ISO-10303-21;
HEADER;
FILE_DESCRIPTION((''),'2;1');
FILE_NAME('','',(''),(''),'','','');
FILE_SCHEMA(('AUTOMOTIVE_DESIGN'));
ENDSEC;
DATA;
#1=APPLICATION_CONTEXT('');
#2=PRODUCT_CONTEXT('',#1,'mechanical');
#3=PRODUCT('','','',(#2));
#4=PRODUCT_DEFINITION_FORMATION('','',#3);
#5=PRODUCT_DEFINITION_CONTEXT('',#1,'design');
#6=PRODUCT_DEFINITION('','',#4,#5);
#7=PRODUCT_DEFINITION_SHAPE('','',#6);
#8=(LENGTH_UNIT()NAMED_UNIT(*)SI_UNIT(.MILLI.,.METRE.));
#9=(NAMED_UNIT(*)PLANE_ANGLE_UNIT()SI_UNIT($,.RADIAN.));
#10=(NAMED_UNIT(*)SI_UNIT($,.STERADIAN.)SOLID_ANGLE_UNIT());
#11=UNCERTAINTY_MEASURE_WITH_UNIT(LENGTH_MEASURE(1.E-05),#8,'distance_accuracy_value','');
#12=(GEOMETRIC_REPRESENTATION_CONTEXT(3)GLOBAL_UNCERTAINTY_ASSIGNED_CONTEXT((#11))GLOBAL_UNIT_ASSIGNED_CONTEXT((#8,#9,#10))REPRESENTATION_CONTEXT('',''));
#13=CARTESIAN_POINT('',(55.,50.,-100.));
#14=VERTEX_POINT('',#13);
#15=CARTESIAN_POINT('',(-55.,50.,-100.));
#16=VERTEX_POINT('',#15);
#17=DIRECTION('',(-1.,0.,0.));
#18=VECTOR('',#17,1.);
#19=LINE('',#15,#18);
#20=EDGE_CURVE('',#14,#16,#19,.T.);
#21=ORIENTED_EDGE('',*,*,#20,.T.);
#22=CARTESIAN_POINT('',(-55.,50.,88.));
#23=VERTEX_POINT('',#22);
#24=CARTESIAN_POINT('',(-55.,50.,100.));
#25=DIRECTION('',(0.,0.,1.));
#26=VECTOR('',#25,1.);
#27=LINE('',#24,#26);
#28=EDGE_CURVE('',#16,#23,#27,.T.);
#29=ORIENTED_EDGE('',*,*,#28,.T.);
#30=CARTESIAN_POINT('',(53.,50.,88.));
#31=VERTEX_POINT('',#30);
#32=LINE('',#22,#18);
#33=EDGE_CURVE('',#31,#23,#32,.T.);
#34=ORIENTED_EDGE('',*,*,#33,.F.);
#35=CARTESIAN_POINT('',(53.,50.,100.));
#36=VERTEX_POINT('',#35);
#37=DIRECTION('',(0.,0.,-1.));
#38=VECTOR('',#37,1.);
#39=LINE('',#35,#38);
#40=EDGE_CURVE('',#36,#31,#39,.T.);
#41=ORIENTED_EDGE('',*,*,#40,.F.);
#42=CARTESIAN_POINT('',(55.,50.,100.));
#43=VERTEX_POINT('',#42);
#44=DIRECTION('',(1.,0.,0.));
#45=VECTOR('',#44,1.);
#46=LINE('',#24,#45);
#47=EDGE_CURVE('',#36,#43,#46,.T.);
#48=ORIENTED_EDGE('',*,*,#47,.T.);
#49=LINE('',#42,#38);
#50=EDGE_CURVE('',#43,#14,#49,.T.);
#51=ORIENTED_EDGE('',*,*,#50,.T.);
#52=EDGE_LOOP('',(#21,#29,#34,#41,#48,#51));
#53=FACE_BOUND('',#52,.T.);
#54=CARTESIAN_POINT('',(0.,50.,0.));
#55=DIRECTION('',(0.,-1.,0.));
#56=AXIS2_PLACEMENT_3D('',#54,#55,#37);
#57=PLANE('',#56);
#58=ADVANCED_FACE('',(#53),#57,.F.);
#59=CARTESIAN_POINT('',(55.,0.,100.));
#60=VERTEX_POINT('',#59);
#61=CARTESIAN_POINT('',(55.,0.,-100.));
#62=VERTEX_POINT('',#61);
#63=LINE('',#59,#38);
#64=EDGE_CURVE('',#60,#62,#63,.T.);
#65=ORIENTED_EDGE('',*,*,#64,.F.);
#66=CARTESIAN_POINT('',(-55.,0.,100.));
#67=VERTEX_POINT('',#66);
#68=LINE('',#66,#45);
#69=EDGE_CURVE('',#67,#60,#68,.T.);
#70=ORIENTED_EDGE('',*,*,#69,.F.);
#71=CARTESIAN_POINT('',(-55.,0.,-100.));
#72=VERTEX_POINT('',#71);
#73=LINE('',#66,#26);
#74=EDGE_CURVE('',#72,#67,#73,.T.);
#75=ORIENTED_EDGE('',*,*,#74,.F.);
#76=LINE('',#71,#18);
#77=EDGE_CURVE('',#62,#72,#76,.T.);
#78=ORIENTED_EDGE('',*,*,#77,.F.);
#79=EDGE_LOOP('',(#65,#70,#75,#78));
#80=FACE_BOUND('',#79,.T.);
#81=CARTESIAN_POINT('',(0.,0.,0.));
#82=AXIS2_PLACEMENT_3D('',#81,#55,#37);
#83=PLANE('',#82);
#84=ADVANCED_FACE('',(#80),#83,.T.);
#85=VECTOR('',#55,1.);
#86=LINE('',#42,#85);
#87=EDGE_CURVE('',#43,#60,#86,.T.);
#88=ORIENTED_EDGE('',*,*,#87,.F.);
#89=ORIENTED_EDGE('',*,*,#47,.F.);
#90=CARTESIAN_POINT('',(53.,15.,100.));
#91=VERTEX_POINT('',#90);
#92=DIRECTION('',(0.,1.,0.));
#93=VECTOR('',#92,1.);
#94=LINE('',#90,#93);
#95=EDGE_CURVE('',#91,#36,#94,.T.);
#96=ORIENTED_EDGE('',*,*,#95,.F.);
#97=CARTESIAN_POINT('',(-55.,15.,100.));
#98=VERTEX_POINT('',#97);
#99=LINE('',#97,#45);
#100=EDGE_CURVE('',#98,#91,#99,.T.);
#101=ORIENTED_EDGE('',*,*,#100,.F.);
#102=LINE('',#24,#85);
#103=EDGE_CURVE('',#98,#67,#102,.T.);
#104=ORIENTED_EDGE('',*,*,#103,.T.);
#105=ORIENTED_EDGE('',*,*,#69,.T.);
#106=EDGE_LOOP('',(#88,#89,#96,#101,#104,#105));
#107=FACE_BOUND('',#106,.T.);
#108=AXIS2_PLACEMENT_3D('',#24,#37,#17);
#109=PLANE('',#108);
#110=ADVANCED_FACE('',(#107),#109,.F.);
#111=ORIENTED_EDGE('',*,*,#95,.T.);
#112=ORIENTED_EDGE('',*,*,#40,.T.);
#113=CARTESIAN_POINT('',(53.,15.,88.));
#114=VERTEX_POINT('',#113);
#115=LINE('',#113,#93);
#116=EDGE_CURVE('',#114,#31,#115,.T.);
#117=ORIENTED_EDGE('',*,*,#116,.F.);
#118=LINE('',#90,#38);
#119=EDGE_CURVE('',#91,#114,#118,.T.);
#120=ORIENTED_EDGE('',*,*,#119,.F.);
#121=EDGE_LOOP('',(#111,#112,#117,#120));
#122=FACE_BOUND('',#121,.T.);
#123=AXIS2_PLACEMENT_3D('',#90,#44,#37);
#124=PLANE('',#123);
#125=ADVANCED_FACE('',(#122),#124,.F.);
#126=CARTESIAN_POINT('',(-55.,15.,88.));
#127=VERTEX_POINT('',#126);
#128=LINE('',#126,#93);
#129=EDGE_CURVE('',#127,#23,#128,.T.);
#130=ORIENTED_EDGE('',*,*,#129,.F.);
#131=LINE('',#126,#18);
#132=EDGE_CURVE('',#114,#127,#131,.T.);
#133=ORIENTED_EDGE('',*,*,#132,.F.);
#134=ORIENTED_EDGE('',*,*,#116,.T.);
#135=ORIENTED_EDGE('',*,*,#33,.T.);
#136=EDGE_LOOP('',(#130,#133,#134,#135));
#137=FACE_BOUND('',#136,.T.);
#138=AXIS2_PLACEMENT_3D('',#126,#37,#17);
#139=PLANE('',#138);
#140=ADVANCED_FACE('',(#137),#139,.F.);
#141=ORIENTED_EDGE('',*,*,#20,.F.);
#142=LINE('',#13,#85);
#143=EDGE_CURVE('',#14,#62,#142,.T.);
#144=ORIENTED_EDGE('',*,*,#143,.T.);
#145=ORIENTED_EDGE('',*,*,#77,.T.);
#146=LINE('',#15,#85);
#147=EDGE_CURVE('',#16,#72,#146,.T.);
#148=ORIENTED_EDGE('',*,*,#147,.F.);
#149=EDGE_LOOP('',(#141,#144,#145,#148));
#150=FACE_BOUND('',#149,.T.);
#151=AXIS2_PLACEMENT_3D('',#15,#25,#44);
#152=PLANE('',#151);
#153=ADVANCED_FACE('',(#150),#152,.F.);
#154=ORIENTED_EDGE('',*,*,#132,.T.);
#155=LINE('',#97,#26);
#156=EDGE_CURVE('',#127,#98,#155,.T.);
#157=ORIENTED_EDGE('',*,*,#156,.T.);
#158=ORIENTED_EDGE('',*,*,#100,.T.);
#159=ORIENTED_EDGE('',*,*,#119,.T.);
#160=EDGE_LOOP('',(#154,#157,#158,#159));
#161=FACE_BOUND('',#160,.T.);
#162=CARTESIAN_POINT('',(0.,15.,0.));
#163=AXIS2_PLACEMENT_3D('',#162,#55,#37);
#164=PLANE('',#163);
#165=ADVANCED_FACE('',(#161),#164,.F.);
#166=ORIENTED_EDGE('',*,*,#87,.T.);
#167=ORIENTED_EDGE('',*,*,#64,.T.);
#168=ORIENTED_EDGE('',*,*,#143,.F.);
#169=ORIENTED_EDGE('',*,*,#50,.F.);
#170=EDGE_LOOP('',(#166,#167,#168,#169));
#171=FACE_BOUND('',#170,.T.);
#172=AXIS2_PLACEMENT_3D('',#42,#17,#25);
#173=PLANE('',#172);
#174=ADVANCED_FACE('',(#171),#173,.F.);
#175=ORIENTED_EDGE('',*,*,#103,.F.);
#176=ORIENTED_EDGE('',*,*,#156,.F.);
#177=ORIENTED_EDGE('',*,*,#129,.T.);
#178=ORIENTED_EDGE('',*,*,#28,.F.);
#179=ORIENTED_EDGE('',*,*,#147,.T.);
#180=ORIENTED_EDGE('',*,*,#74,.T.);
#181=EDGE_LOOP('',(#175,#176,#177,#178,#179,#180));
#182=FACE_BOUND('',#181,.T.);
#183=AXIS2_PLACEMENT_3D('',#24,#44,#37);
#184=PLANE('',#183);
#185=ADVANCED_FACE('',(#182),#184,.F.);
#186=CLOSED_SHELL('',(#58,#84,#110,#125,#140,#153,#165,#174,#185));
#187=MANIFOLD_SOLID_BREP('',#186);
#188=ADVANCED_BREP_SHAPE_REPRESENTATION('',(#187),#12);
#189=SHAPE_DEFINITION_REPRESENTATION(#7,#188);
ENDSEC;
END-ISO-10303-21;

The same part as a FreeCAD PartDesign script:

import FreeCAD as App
import Part
import Sketcher
from FreeCAD import Vector


def add_polygon(sketch, points):
    """Adds a closed chain of lines whose ends are joined by coincident constraints."""
    first, n = sketch.GeometryCount, len(points)
    for a, b in zip(points, points[1:] + points[:1]):
        sketch.addGeometry(Part.LineSegment(App.Vector(*a, 0), App.Vector(*b, 0)), False)
    for i in range(n):
        sketch.addConstraint(Sketcher.Constraint("Coincident", first + i, 2, first + (i + 1) % n, 1))

doc = App.newDocument("Part")
body = doc.addObject("PartDesign::Body", "Body")

# Sketch on XZ plane
sketch1 = body.newObject("Sketcher::SketchObject", "Sketch")
sketch1.AttachmentSupport = (doc.getObject("XZ_Plane"), [""])
sketch1.MapMode = "FlatFace"
add_polygon(sketch1, [(-55, -100), (-55, 100), (55, 100), (55, -100)])  # lines 0-3
sketch1.addConstraint(Sketcher.Constraint("Vertical", 0))
sketch1.addConstraint(Sketcher.Constraint("Horizontal", 1))
sketch1.addConstraint(Sketcher.Constraint("Vertical", 2))
sketch1.addConstraint(Sketcher.Constraint("Horizontal", 3))
sketch1.addConstraint(Sketcher.Constraint("Symmetric", 0, 2, 2, 2, -1, 1))
sketch1.addConstraint(Sketcher.Constraint("DistanceX", 1, 1, 1, 2, 110.0))
sketch1.addConstraint(Sketcher.Constraint("DistanceY", 0, 1, 0, 2, 200.0))
pad1 = body.newObject("PartDesign::Pad", "Pad")
pad1.Profile = sketch1
pad1.Length = 50
pad1.Reversed = True

# Sketch on XZ plane
sketch2 = body.newObject("Sketcher::SketchObject", "Sketch001")
sketch2.AttachmentSupport = (doc.getObject("XZ_Plane"), [""])
sketch2.MapMode = "FlatFace"
sketch2.AttachmentOffset = App.Placement(Vector(0, 0, -50), App.Rotation())
add_polygon(sketch2, [(-55, 88), (-55, 100), (53, 100), (53, 88)])  # lines 0-3
sketch2.addConstraint(Sketcher.Constraint("Vertical", 0))
sketch2.addConstraint(Sketcher.Constraint("Horizontal", 1))
sketch2.addConstraint(Sketcher.Constraint("Vertical", 2))
sketch2.addConstraint(Sketcher.Constraint("Horizontal", 3))
sketch2.addConstraint(Sketcher.Constraint("DistanceX", 1, 1, 1, 2, 108.0))
sketch2.addConstraint(Sketcher.Constraint("DistanceY", 0, 1, 0, 2, 12.0))
sketch2.addConstraint(Sketcher.Constraint("DistanceX", 0, 2, -1, 1, 55.0))
sketch2.addConstraint(Sketcher.Constraint("DistanceY", -1, 1, 0, 2, 100.0))
pocket1 = body.newObject("PartDesign::Pocket", "Pocket")
pocket1.Profile = sketch2
pocket1.Length = 35
pocket1.Reversed = True

doc.recompute()
